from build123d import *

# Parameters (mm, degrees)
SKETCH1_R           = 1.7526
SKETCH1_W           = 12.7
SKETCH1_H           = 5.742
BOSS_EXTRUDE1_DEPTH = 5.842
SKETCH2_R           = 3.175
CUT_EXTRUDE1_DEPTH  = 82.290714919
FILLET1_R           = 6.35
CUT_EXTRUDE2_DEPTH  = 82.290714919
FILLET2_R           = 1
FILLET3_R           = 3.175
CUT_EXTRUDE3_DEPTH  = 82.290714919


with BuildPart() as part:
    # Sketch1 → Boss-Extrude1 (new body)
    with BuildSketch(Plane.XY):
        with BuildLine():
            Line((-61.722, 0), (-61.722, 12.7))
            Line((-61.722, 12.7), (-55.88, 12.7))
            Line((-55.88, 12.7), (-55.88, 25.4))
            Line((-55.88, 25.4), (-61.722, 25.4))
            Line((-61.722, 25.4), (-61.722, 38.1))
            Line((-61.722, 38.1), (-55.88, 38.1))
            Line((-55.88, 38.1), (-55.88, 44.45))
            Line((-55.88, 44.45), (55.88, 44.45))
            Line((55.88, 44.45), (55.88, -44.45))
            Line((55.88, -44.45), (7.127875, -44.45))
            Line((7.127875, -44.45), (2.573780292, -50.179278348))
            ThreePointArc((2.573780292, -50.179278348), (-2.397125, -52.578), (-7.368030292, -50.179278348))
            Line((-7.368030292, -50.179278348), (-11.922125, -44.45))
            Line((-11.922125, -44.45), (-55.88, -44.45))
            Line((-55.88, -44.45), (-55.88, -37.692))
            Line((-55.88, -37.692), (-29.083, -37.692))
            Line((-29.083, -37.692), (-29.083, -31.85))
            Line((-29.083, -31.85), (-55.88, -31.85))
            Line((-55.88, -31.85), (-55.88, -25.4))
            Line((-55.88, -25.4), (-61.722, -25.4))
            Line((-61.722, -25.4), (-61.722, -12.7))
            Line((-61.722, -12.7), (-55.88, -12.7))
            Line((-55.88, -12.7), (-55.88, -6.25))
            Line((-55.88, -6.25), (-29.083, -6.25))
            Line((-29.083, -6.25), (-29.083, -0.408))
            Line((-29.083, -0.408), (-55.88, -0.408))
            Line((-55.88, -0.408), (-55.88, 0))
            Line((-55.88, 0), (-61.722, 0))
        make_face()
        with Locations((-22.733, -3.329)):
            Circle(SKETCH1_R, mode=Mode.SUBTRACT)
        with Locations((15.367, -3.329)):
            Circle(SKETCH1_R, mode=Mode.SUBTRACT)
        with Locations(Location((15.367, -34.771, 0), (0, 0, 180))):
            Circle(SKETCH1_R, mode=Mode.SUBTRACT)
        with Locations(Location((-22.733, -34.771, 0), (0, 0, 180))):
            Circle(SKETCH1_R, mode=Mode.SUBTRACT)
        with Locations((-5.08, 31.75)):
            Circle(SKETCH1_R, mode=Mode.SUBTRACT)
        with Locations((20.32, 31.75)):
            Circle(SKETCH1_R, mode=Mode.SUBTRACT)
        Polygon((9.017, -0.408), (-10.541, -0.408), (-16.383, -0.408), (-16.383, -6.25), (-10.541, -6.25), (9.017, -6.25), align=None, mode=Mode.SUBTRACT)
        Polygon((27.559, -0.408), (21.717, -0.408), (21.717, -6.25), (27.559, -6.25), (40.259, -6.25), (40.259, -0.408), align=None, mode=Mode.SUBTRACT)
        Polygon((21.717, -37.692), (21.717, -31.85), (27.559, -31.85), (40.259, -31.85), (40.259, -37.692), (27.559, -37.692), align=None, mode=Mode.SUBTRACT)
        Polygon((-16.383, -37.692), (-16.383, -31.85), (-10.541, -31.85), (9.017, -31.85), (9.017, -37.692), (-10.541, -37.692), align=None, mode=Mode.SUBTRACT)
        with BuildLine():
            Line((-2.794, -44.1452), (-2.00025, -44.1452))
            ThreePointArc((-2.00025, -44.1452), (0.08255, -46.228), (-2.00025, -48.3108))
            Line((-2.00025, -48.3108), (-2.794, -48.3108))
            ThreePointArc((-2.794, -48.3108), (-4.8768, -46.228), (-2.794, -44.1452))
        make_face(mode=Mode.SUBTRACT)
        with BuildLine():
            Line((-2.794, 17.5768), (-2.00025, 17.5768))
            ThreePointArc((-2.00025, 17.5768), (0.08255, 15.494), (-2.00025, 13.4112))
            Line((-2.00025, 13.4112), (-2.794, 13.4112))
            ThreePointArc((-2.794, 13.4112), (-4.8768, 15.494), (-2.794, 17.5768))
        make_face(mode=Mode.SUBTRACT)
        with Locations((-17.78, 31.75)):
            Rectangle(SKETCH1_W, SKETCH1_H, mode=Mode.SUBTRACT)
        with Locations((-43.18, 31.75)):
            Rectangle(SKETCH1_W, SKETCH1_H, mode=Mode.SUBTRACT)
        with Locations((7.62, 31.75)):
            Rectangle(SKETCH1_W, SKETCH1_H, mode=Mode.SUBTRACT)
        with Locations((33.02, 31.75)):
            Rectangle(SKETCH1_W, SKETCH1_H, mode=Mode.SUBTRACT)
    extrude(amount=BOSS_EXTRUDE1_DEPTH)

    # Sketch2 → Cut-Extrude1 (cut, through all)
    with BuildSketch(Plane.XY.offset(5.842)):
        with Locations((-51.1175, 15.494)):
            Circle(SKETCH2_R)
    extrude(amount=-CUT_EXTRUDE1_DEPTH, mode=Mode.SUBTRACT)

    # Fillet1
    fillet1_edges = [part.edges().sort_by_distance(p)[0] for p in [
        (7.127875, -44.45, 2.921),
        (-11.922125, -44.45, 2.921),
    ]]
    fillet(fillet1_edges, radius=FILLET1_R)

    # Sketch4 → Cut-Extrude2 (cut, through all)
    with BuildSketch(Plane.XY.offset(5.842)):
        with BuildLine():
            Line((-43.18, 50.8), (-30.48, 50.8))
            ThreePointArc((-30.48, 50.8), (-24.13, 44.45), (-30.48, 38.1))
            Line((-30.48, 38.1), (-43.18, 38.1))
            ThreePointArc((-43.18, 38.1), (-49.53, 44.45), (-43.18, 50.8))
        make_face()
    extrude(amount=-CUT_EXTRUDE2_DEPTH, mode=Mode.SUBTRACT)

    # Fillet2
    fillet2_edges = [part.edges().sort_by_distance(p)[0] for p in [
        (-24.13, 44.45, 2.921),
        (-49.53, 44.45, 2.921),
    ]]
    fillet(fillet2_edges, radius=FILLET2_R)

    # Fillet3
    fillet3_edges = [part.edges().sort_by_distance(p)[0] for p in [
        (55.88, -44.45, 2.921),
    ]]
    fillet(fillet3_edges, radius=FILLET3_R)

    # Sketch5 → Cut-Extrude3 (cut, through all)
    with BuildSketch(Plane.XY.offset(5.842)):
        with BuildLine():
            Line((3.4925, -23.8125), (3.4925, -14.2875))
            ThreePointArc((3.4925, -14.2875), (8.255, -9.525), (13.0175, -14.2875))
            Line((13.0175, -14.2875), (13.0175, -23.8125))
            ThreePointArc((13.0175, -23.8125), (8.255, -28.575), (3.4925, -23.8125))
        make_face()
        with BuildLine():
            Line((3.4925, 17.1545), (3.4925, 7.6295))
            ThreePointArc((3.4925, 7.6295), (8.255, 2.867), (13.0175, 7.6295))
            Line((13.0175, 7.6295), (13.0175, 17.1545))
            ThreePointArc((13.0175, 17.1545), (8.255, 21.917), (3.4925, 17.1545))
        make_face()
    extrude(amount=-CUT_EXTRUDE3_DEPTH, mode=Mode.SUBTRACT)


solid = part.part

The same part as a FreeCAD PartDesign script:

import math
import FreeCAD as App
import Part
import Sketcher
from FreeCAD import Vector
Q = App.Units.Quantity


def edges_at(feature, points):
    """Names of the edges that pass closest to the given points."""
    edges = feature.Shape.Edges
    near = lambda p: min(range(len(edges)), key=lambda i: edges[i].distToShape(Part.Vertex(*p))[0])
    return sorted({f"Edge{near(p) + 1}" for p in points})


def add_polygon(sketch, points):
    """Adds a closed chain of lines whose ends are joined by coincident constraints."""
    first, n = sketch.GeometryCount, len(points)
    for a, b in zip(points, points[1:] + points[:1]):
        sketch.addGeometry(Part.LineSegment(App.Vector(*a, 0), App.Vector(*b, 0)), False)
    for i in range(n):
        sketch.addConstraint(Sketcher.Constraint("Coincident", first + i, 2, first + (i + 1) % n, 1))

doc = App.newDocument("Part")
body = doc.addObject("PartDesign::Body", "Body")

sketch1 = doc.addObject("Sketcher::SketchObject", "Sketch")
body.addObject(sketch1)
sketch1.AttachmentSupport = (doc.XY_Plane, [""])
sketch1.MapMode = "FlatFace"
sketch1.addGeometry(Part.LineSegment(Vector(-61.72, 12.7, 0), Vector(-61.72, 0, 0)), False)
sketch1.addGeometry(Part.LineSegment(Vector(-61.72, 0, 0), Vector(-55.88, 0, 0)), False)
sketch1.addGeometry(Part.LineSegment(Vector(-55.88, 0, 0), Vector(-55.88, -0.41, 0)), False)
sketch1.addGeometry(Part.LineSegment(Vector(-55.88, -0.41, 0), Vector(-29.08, -0.41, 0)), False)
sketch1.addGeometry(Part.LineSegment(Vector(-29.08, -0.41, 0), Vector(-29.08, -6.25, 0)), False)
sketch1.addGeometry(Part.LineSegment(Vector(-29.08, -6.25, 0), Vector(-55.88, -6.25, 0)), False)
sketch1.addGeometry(Part.LineSegment(Vector(-55.88, -6.25, 0), Vector(-55.88, -12.7, 0)), False)
sketch1.addGeometry(Part.LineSegment(Vector(-55.88, -12.7, 0), Vector(-61.72, -12.7, 0)), False)
sketch1.addGeometry(Part.LineSegment(Vector(-61.72, -12.7, 0), Vector(-61.72, -25.4, 0)), False)
sketch1.addGeometry(Part.LineSegment(Vector(-61.72, -25.4, 0), Vector(-55.88, -25.4, 0)), False)
sketch1.addGeometry(Part.LineSegment(Vector(-55.88, -25.4, 0), Vector(-55.88, -31.85, 0)), False)
sketch1.addGeometry(Part.LineSegment(Vector(-55.88, -31.85, 0), Vector(-29.08, -31.85, 0)), False)
sketch1.addGeometry(Part.LineSegment(Vector(-29.08, -31.85, 0), Vector(-29.08, -37.69, 0)), False)
sketch1.addGeometry(Part.LineSegment(Vector(-29.08, -37.69, 0), Vector(-55.88, -37.69, 0)), False)
sketch1.addGeometry(Part.LineSegment(Vector(-55.88, -37.69, 0), Vector(-55.88, -44.45, 0)), False)
sketch1.addGeometry(Part.LineSegment(Vector(-55.88, -44.45, 0), Vector(-11.92, -44.45, 0)), False)
sketch1.addGeometry(Part.LineSegment(Vector(-11.92, -44.45, 0), Vector(-7.37, -50.18, 0)), False)
sketch1.addGeometry(Part.ArcOfCircle(Part.Circle(Vector(-2.4, -46.23, 0), Vector(0, 0, 1), 6.35), math.radians(-142), math.radians(-38)), False)
sketch1.addGeometry(Part.LineSegment(Vector(2.57, -50.18, 0), Vector(7.13, -44.45, 0)), False)
sketch1.addGeometry(Part.LineSegment(Vector(7.13, -44.45, 0), Vector(55.88, -44.45, 0)), False)
sketch1.addGeometry(Part.LineSegment(Vector(55.88, -44.45, 0), Vector(55.88, 44.45, 0)), False)
sketch1.addGeometry(Part.LineSegment(Vector(55.88, 44.45, 0), Vector(-55.88, 44.45, 0)), False)
sketch1.addGeometry(Part.LineSegment(Vector(-55.88, 44.45, 0), Vector(-55.88, 38.1, 0)), False)
sketch1.addGeometry(Part.LineSegment(Vector(-55.88, 38.1, 0), Vector(-61.72, 38.1, 0)), False)
sketch1.addGeometry(Part.LineSegment(Vector(-61.72, 38.1, 0), Vector(-61.72, 25.4, 0)), False)
sketch1.addGeometry(Part.LineSegment(Vector(-61.72, 25.4, 0), Vector(-55.88, 25.4, 0)), False)
sketch1.addGeometry(Part.LineSegment(Vector(-55.88, 25.4, 0), Vector(-55.88, 12.7, 0)), False)
sketch1.addGeometry(Part.LineSegment(Vector(-55.88, 12.7, 0), Vector(-61.72, 12.7, 0)), False)
add_polygon(sketch1, [(21.72, -37.69), (21.72, -31.85), (40.26, -31.85), (40.26, -37.69)])
sketch1.addGeometry(Part.LineSegment(Vector(-2.79, -44.15, 0), Vector(-2, -44.15, 0)), False)
sketch1.addGeometry(Part.ArcOfCircle(Part.Circle(Vector(-2, -46.23, 0), Vector(0, 0, 1), 2.08), math.radians(-90), math.radians(90)), False)
sketch1.addGeometry(Part.LineSegment(Vector(-2, -48.31, 0), Vector(-2.79, -48.31, 0)), False)
sketch1.addGeometry(Part.ArcOfCircle(Part.Circle(Vector(-2.79, -46.23, 0), Vector(0, 0, 1), 2.08), math.radians(90), math.radians(270)), False)
sketch1.addGeometry(Part.Circle(Vector(15.37, -34.77, 0), Vector(0, 0, 1), 1.75), False)
add_polygon(sketch1, [(-16.38, -37.69), (-16.38, -31.85), (9.02, -31.85), (9.02, -37.69)])
sketch1.addGeometry(Part.Circle(Vector(-22.73, -34.77, 0), Vector(0, 0, 1), 1.75), False)
add_polygon(sketch1, [(40.26, -0.41), (40.26, -6.25), (21.72, -6.25), (21.72, -0.41)])
sketch1.addGeometry(Part.Circle(Vector(15.37, -3.33, 0), Vector(0, 0, 1), 1.75), False)
add_polygon(sketch1, [(9.02, -0.41), (9.02, -6.25), (-16.38, -6.25), (-16.38, -0.41)])
add_polygon(sketch1, [(26.67, 28.88), (26.67, 34.62), (39.37, 34.62), (39.37, 28.88)])
sketch1.addGeometry(Part.Circle(Vector(20.32, 31.75, 0), Vector(0, 0, 1), 1.75), False)
sketch1.addGeometry(Part.LineSegment(Vector(-2.79, 17.58, 0), Vector(-2, 17.58, 0)), False)
sketch1.addGeometry(Part.ArcOfCircle(Part.Circle(Vector(-2, 15.49, 0), Vector(0, 0, 1), 2.08), math.radians(-90), math.radians(90)), False)
sketch1.addGeometry(Part.LineSegment(Vector(-2, 13.41, 0), Vector(-2.79, 13.41, 0)), False)
sketch1.addGeometry(Part.ArcOfCircle(Part.Circle(Vector(-2.79, 15.49, 0), Vector(0, 0, 1), 2.08), math.radians(90), math.radians(270)), False)
add_polygon(sketch1, [(1.27, 28.88), (1.27, 34.62), (13.97, 34.62), (13.97, 28.88)])
sketch1.addGeometry(Part.Circle(Vector(-22.73, -3.33, 0), Vector(0, 0, 1), 1.75), False)
sketch1.addGeometry(Part.Circle(Vector(-5.08, 31.75, 0), Vector(0, 0, 1), 1.75), False)
add_polygon(sketch1, [(-24.13, 28.88), (-24.13, 34.62), (-11.43, 34.62), (-11.43, 28.88)])
add_polygon(sketch1, [(-49.53, 28.88), (-49.53, 34.62), (-36.83, 34.62), (-36.83, 28.88)])
sketch1.addConstraint(Sketcher.Constraint("Coincident", 0, 2, 1, 1))
sketch1.addConstraint(Sketcher.Constraint("Coincident", 1, 2, 2, 1))
sketch1.addConstraint(Sketcher.Constraint("Coincident", 2, 2, 3, 1))
sketch1.addConstraint(Sketcher.Constraint("Coincident", 3, 2, 4, 1))
sketch1.addConstraint(Sketcher.Constraint("Coincident", 4, 2, 5, 1))
sketch1.addConstraint(Sketcher.Constraint("Coincident", 5, 2, 6, 1))
sketch1.addConstraint(Sketcher.Constraint("Coincident", 6, 2, 7, 1))
sketch1.addConstraint(Sketcher.Constraint("Coincident", 7, 2, 8, 1))
sketch1.addConstraint(Sketcher.Constraint("Coincident", 8, 2, 9, 1))
sketch1.addConstraint(Sketcher.Constraint("Coincident", 9, 2, 10, 1))
sketch1.addConstraint(Sketcher.Constraint("Coincident", 10, 2, 11, 1))
sketch1.addConstraint(Sketcher.Constraint("Coincident", 11, 2, 12, 1))
sketch1.addConstraint(Sketcher.Constraint("Coincident", 12, 2, 13, 1))
sketch1.addConstraint(Sketcher.Constraint("Coincident", 13, 2, 14, 1))
sketch1.addConstraint(Sketcher.Constraint("Coincident", 14, 2, 15, 1))
sketch1.addConstraint(Sketcher.Constraint("Coincident", 15, 2, 16, 1))
sketch1.addConstraint(Sketcher.Constraint("Tangent", 16, 2, 17, 1))
sketch1.addConstraint(Sketcher.Constraint("Tangent", 17, 2, 18, 1))
sketch1.addConstraint(Sketcher.Constraint("Coincident", 18, 2, 19, 1))
sketch1.addConstraint(Sketcher.Constraint("Coincident", 19, 2, 20, 1))
sketch1.addConstraint(Sketcher.Constraint("Coincident", 20, 2, 21, 1))
sketch1.addConstraint(Sketcher.Constraint("Coincident", 21, 2, 22, 1))
sketch1.addConstraint(Sketcher.Constraint("Coincident", 22, 2, 23, 1))
sketch1.addConstraint(Sketcher.Constraint("Coincident", 23, 2, 24, 1))
sketch1.addConstraint(Sketcher.Constraint("Coincident", 24, 2, 25, 1))
sketch1.addConstraint(Sketcher.Constraint("Coincident", 25, 2, 26, 1))
sketch1.addConstraint(Sketcher.Constraint("Coincident", 26, 2, 27, 1))
sketch1.addConstraint(Sketcher.Constraint("Coincident", 27, 2, 0, 1))
sketch1.addConstraint(Sketcher.Constraint("Tangent", 32, 2, 33, 2))
sketch1.addConstraint(Sketcher.Constraint("Tangent", 33, 1, 34, 1))
sketch1.addConstraint(Sketcher.Constraint("Tangent", 34, 2, 35, 2))
sketch1.addConstraint(Sketcher.Constraint("Tangent", 35, 1, 32, 1))
sketch1.addConstraint(Sketcher.Constraint("Tangent", 56, 2, 57, 2))
sketch1.addConstraint(Sketcher.Constraint("Tangent", 57, 1, 58, 1))
sketch1.addConstraint(Sketcher.Constraint("Tangent", 58, 2, 59, 2))
sketch1.addConstraint(Sketcher.Constraint("Tangent", 59, 1, 56, 1))
sketch1.addConstraint(Sketcher.Constraint("Vertical", 0))
sketch1.addConstraint(Sketcher.Constraint("Horizontal", 1))
sketch1.addConstraint(Sketcher.Constraint("Vertical", 2))
sketch1.addConstraint(Sketcher.Constraint("Horizontal", 3))
sketch1.addConstraint(Sketcher.Constraint("Vertical", 4))
sketch1.addConstraint(Sketcher.Constraint("Horizontal", 5))
sketch1.addConstraint(Sketcher.Constraint("Vertical", 6))
sketch1.addConstraint(Sketcher.Constraint("Horizontal", 7))
sketch1.addConstraint(Sketcher.Constraint("Vertical", 8))
sketch1.addConstraint(Sketcher.Constraint("Horizontal", 9))
sketch1.addConstraint(Sketcher.Constraint("Vertical", 10))
sketch1.addConstraint(Sketcher.Constraint("Horizontal", 11))
sketch1.addConstraint(Sketcher.Constraint("Vertical", 12))
sketch1.addConstraint(Sketcher.Constraint("Horizontal", 13))
sketch1.addConstraint(Sketcher.Constraint("Vertical", 14))
sketch1.addConstraint(Sketcher.Constraint("Horizontal", 15))
sketch1.addConstraint(Sketcher.Constraint("Horizontal", 19))
sketch1.addConstraint(Sketcher.Constraint("Vertical", 20))
sketch1.addConstraint(Sketcher.Constraint("Horizontal", 21))
sketch1.addConstraint(Sketcher.Constraint("Vertical", 22))
sketch1.addConstraint(Sketcher.Constraint("Horizontal", 23))
sketch1.addConstraint(Sketcher.Constraint("Vertical", 24))
sketch1.addConstraint(Sketcher.Constraint("Horizontal", 25))
sketch1.addConstraint(Sketcher.Constraint("Vertical", 26))
sketch1.addConstraint(Sketcher.Constraint("Horizontal", 27))
sketch1.addConstraint(Sketcher.Constraint("Vertical", 28))
sketch1.addConstraint(Sketcher.Constraint("Horizontal", 29))
sketch1.addConstraint(Sketcher.Constraint("Vertical", 30))
sketch1.addConstraint(Sketcher.Constraint("Horizontal", 31))
sketch1.addConstraint(Sketcher.Constraint("Horizontal", 32))
sketch1.addConstraint(Sketcher.Constraint("Horizontal", 34))
sketch1.addConstraint(Sketcher.Constraint("Vertical", 37))
sketch1.addConstraint(Sketcher.Constraint("Horizontal", 38))
sketch1.addConstraint(Sketcher.Constraint("Vertical", 39))
sketch1.addConstraint(Sketcher.Constraint("Horizontal", 40))
sketch1.addConstraint(Sketcher.Constraint("Vertical", 42))
sketch1.addConstraint(Sketcher.Constraint("Horizontal", 43))
sketch1.addConstraint(Sketcher.Constraint("Vertical", 44))
sketch1.addConstraint(Sketcher.Constraint("Horizontal", 45))
sketch1.addConstraint(Sketcher.Constraint("Vertical", 47))
sketch1.addConstraint(Sketcher.Constraint("Horizontal", 48))
sketch1.addConstraint(Sketcher.Constraint("Vertical", 49))
sketch1.addConstraint(Sketcher.Constraint("Horizontal", 50))
sketch1.addConstraint(Sketcher.Constraint("Vertical", 51))
sketch1.addConstraint(Sketcher.Constraint("Horizontal", 52))
sketch1.addConstraint(Sketcher.Constraint("Vertical", 53))
sketch1.addConstraint(Sketcher.Constraint("Horizontal", 54))
sketch1.addConstraint(Sketcher.Constraint("Horizontal", 56))
sketch1.addConstraint(Sketcher.Constraint("Horizontal", 58))
sketch1.addConstraint(Sketcher.Constraint("Vertical", 60))
sketch1.addConstraint(Sketcher.Constraint("Horizontal", 61))
sketch1.addConstraint(Sketcher.Constraint("Vertical", 62))
sketch1.addConstraint(Sketcher.Constraint("Horizontal", 63))
sketch1.addConstraint(Sketcher.Constraint("Vertical", 66))
sketch1.addConstraint(Sketcher.Constraint("Horizontal", 67))
sketch1.addConstraint(Sketcher.Constraint("Vertical", 68))
sketch1.addConstraint(Sketcher.Constraint("Horizontal", 69))
sketch1.addConstraint(Sketcher.Constraint("Vertical", 70))
sketch1.addConstraint(Sketcher.Constraint("Horizontal", 71))
sketch1.addConstraint(Sketcher.Constraint("Vertical", 72))
sketch1.addConstraint(Sketcher.Constraint("Horizontal", 73))
sketch1.addConstraint(Sketcher.Constraint("Equal", 36, 41))
sketch1.addConstraint(Sketcher.Constraint("Equal", 41, 46))
sketch1.addConstraint(Sketcher.Constraint("Equal", 46, 55))
sketch1.addConstraint(Sketcher.Constraint("Equal", 35, 57))
sketch1.addConstraint(Sketcher.Constraint("Equal", 55, 64))
sketch1.addConstraint(Sketcher.Constraint("Equal", 64, 65))
sketch1.addConstraint(Sketcher.Constraint("Symmetric", 14, 2, 20, 2, -1, 1))
sketch1.addConstraint(Sketcher.Constraint("Symmetric", 19, 2, 21, 2, -1, 1))
sketch1.addConstraint(Sketcher.Constraint("Symmetric", 8, 2, 24, 2, -1))
sketch1.addConstraint(Sketcher.Constraint("Symmetric", 6, 2, 26, 2, -1))
sketch1.addConstraint(Sketcher.Constraint("PointOnObject", 0, 2, -1))
sketch1.addConstraint(Sketcher.Constraint("Horizontal", 17, 3, 33, 3))
sketch1.addConstraint(Sketcher.Constraint("Horizontal", 36, 3, 41, 3))
sketch1.addConstraint(Sketcher.Constraint("Horizontal", 46, 3, 64, 3))
sketch1.addConstraint(Sketcher.Constraint("Horizontal", 55, 3, 65, 3))
sketch1.addConstraint(Sketcher.Constraint("Horizontal", 16, 2, 17, 2))
sketch1.addConstraint(Sketcher.Constraint("Horizontal", 11, 2, 28, 2))
sketch1.addConstraint(Sketcher.Constraint("Horizontal", 13, 2, 30, 2))
sketch1.addConstraint(Sketcher.Constraint("Horizontal", 29, 2, 37, 2))
sketch1.addConstraint(Sketcher.Constraint("Horizontal", 31, 2, 39, 2))
sketch1.addConstraint(Sketcher.Constraint("Horizontal", 5, 2, 42, 2))
sketch1.addConstraint(Sketcher.Constraint("Horizontal", 3, 2, 44, 2))
sketch1.addConstraint(Sketcher.Constraint("Horizontal", 43, 2, 47, 2))
sketch1.addConstraint(Sketcher.Constraint("Horizontal", 45, 2, 49, 2))
sketch1.addConstraint(Sketcher.Constraint("Horizontal", 52, 2, 60, 2))
sketch1.addConstraint(Sketcher.Constraint("Horizontal", 54, 2, 62, 2))
sketch1.addConstraint(Sketcher.Constraint("Horizontal", 61, 2, 66, 2))
sketch1.addConstraint(Sketcher.Constraint("Horizontal", 63, 2, 68, 2))
sketch1.addConstraint(Sketcher.Constraint("Horizontal", 67, 2, 70, 2))
sketch1.addConstraint(Sketcher.Constraint("Horizontal", 69, 2, 72, 2))
sketch1.addConstraint(Sketcher.Constraint("Vertical", 36, 3, 46, 3))
sketch1.addConstraint(Sketcher.Constraint("Vertical", 33, 3, 57, 3))
sketch1.addConstraint(Sketcher.Constraint("Vertical", 35, 3, 59, 3))
sketch1.addConstraint(Sketcher.Constraint("Vertical", 41, 3, 64, 3))
sketch1.addConstraint(Sketcher.Constraint("Vertical", 2, 2, 5, 2))
sketch1.addConstraint(Sketcher.Constraint("Vertical", 0, 2, 7, 2))
sketch1.addConstraint(Sketcher.Constraint("Vertical", 6, 2, 9, 2))
sketch1.addConstraint(Sketcher.Constraint("Vertical", 4, 2, 11, 2))
sketch1.addConstraint(Sketcher.Constraint("Vertical", 10, 2, 13, 2))
sketch1.addConstraint(Sketcher.Constraint("Vertical", 30, 2, 42, 2))
sketch1.addConstraint(Sketcher.Constraint("Vertical", 31, 2, 43, 2))
sketch1.addConstraint(Sketcher.Constraint("Vertical", 39, 2, 47, 2))
sketch1.addConstraint(Sketcher.Constraint("Vertical", 40, 2, 48, 2))
sketch1.addConstraint(Sketcher.Constraint("Equal", 54, 61))
sketch1.addConstraint(Sketcher.Constraint("Equal", 63, 67))
sketch1.addConstraint(Sketcher.Constraint("Equal", 69, 71))
sketch1.addConstraint(Sketcher.Constraint("Equal", 73, 0))
sketch1.addConstraint(Sketcher.Constraint("Equal", 27, 4))
sketch1.addConstraint(Sketcher.Constraint("Equal", 0, 8))
sketch1.addConstraint(Sketcher.Constraint("Equal", 6, 10))
sketch1.addConstraint(Sketcher.Constraint("Equal", 4, 12))
sketch1.addConstraint(Sketcher.Constraint("Equal", 8, 24))
sketch1.addConstraint(Sketcher.Constraint("DistanceX", 38, 1, 38, 2, Q("1 in")))
sketch1.addConstraint(Sketcher.Constraint("Radius", 17, Q("0.25 in")))
sketch1.addConstraint(Sketcher.Constraint("Diameter", 36, Q("0.138 in")))
sketch1.addConstraint(Sketcher.Constraint("DistanceX", 21, 2, 21, 1, Q("4.4 in")))
sketch1.addConstraint(Sketcher.Constraint("DistanceX", 52, 1, 52, 2, Q("0.5 in")))
sketch1.addConstraint(Sketcher.Constraint("DistanceY", 20, 1, 20, 2, Q("3.5 in")))
sketch1.addConstraint(Sketcher.Constraint("Radius", 33, Q("0.082 in")))
sketch1.addConstraint(Sketcher.Constraint("DistanceX", 1, 1, 1, 2, Q("0.23 in")))
sketch1.addConstraint(Sketcher.Constraint("DistanceX", 29, 1, 29, 2, Q("0.73 in")))
sketch1.addConstraint(Sketcher.Constraint("DistanceX", -1, 1, 55, 3, Q("0.8 in")))
sketch1.addConstraint(Sketcher.Constraint("DistanceX", 65, 3, -1, 1, Q("0.2 in")))
sketch1.addConstraint(Sketcher.Constraint("DistanceX", 3, 1, 3, 2, Q("1.055 in")))
sketch1.addConstraint(Sketcher.Constraint("DistanceX", 32, 1, 32, 2, Q("0.03125 in")))
sketch1.addConstraint(Sketcher.Constraint("DistanceY", 17, 3, -1, 1, Q("1.82 in")))
sketch1.addConstraint(Sketcher.Constraint("DistanceX", 35, 3, -1, 1, Q("0.11 in")))
sketch1.addConstraint(Sketcher.Constraint("DistanceY", -1, 1, 55, 3, Q("1.25 in")))
sketch1.addConstraint(Sketcher.Constraint("DistanceY", -1, 1, 57, 3, Q("0.61 in")))
sketch1.addConstraint(Sketcher.Constraint("DistanceX", -1, 1, 51, 2, Q("1.05 in")))
sketch1.addConstraint(Sketcher.Constraint("DistanceX", -1, 1, 60, 2, Q("0.05 in")))
sketch1.addConstraint(Sketcher.Constraint("DistanceX", 66, 2, -1, 1, Q("0.95 in")))
sketch1.addConstraint(Sketcher.Constraint("DistanceX", 70, 2, -1, 1, Q("1.95 in")))
sketch1.addConstraint(Sketcher.Constraint("DistanceX", -1, 1, 36, 3, Q("0.605 in")))
sketch1.addConstraint(Sketcher.Constraint("DistanceX", 41, 3, -1, 1, Q("0.895 in")))
sketch1.addConstraint(Sketcher.Constraint("DistanceX", -1, 1, 28, 2, Q("0.855 in")))
sketch1.addConstraint(Sketcher.Constraint("DistanceX", 37, 2, -1, 1, Q("0.645 in")))
sketch1.addConstraint(Sketcher.Constraint("DistanceY", 2, 2, 2, 1, Q("0.408 mm")))
sketch1.addConstraint(Sketcher.Constraint("DistanceY", 51, 1, 51, 2, Q("5.742 mm")))
sketch1.addConstraint(Sketcher.Constraint("DistanceY", 36, 3, -1, 1, Q("34.771 mm")))
sketch1.addConstraint(Sketcher.Constraint("DistanceY", 46, 3, -1, 1, Q("3.329 mm")))
sketch1.addConstraint(Sketcher.Constraint("DistanceY", -1, 1, 51, 2, Q("34.621 mm")))
sketch1.addConstraint(Sketcher.Constraint("Distance", 16, Q("7.318771 mm")))
sketch1.addConstraint(Sketcher.Constraint("DistanceX", 15, 1, 15, 2, Q("43.957875 mm")))
pad1 = doc.addObject("PartDesign::Pad", "Pad")
body.addObject(pad1)
pad1.Profile = sketch1
pad1.Length = Q("0.23 in")

sketch2 = doc.addObject("Sketcher::SketchObject", "Sketch001")
body.addObject(sketch2)
sketch2.AttachmentSupport = (doc.XY_Plane, [""])
sketch2.MapMode = "FlatFace"
sketch2.AttachmentOffset = App.Placement(Vector(0, 0, 0.23 * 25.4), App.Rotation())
sketch2.addGeometry(Part.Circle(Vector(-51.1, 15.5, 0), Vector(0, 0, 1), 3.2), False)
sketch2.addConstraint(Sketcher.Constraint("Diameter", 0, Q("0.25 in")))
sketch2.addConstraint(Sketcher.Constraint("DistanceY", -1, 1, 0, 3, Q("0.61 in")))
sketch2.addConstraint(Sketcher.Constraint("DistanceX", 0, 3, -1, 1, Q("2.0125 in")))
pocket1 = doc.addObject("PartDesign::Pocket", "Pocket")
body.addObject(pocket1)
pocket1.Profile = sketch2
pocket1.Type = "ThroughAll"
doc.recompute()

fillet = doc.addObject("PartDesign::Fillet", "Fillet")
body.addObject(fillet)
fillet.Base = (pocket1, edges_at(pocket1, [(7.128, -44.45, 2.921), (-11.922, -44.45, 2.921)]))
fillet.Radius = Q("0.25 in")

sketch3 = doc.addObject("Sketcher::SketchObject", "Sketch002")
body.addObject(sketch3)
sketch3.AttachmentSupport = (doc.XY_Plane, [""])
sketch3.MapMode = "FlatFace"
sketch3.AttachmentOffset = App.Placement(Vector(0, 0, 0.23 * 25.4), App.Rotation())
sketch3.addGeometry(Part.LineSegment(Vector(-30, 51, 0), Vector(-43, 51, 0)), False)
sketch3.addGeometry(Part.ArcOfCircle(Part.Circle(Vector(-43, 44, 0), Vector(0, 0, 1), 6), math.radians(90), math.radians(270)), False)
sketch3.addGeometry(Part.LineSegment(Vector(-43, 38, 0), Vector(-30, 38, 0)), False)
sketch3.addGeometry(Part.ArcOfCircle(Part.Circle(Vector(-30, 44, 0), Vector(0, 0, 1), 6), math.radians(-90), math.radians(90)), False)
sketch3.addConstraint(Sketcher.Constraint("Tangent", 0, 2, 1, 1))
sketch3.addConstraint(Sketcher.Constraint("Tangent", 1, 2, 2, 1))
sketch3.addConstraint(Sketcher.Constraint("Tangent", 2, 2, 3, 1))
sketch3.addConstraint(Sketcher.Constraint("Tangent", 3, 2, 0, 1))
sketch3.addConstraint(Sketcher.Constraint("Horizontal", 0))
sketch3.addConstraint(Sketcher.Constraint("Horizontal", 2))
sketch3.addConstraint(Sketcher.Constraint("Radius", 1, Q("0.25 in")))
sketch3.addConstraint(Sketcher.Constraint("DistanceX", 0, 2, 0, 1, Q("0.5 in")))
sketch3.addConstraint(Sketcher.Constraint("DistanceY", -1, 1, 0, 2, Q("2 in")))
sketch3.addConstraint(Sketcher.Constraint("DistanceX", 1, 3, -1, 1, Q("1.7 in")))
pocket2 = doc.addObject("PartDesign::Pocket", "Pocket001")
body.addObject(pocket2)
pocket2.Profile = sketch3
pocket2.Type = "ThroughAll"
doc.recompute()

fillet2 = doc.addObject("PartDesign::Fillet", "Fillet001")
body.addObject(fillet2)
fillet2.Base = (pocket2, edges_at(pocket2, [(-24.13, 44.45, 2.921), (-49.53, 44.45, 2.921)]))
fillet2.Radius = 1
doc.recompute()

fillet3 = doc.addObject("PartDesign::Fillet", "Fillet002")
body.addObject(fillet3)
fillet3.Base = (fillet2, edges_at(fillet2, [(55.88, -44.45, 2.921)]))
fillet3.Radius = Q("0.125 in")

sketch4 = doc.addObject("Sketcher::SketchObject", "Sketch003")
body.addObject(sketch4)
sketch4.AttachmentSupport = (doc.XY_Plane, [""])
sketch4.MapMode = "FlatFace"
sketch4.AttachmentOffset = App.Placement(Vector(0, 0, 0.23 * 25.4), App.Rotation())
sketch4.addGeometry(Part.LineSegment(Vector(3.5, -14.3, 0), Vector(3.5, -23.8, 0)), False)
sketch4.addGeometry(Part.ArcOfCircle(Part.Circle(Vector(8.3, -23.8, 0), Vector(0, 0, 1), 4.8), math.radians(180), math.radians(360)), False)
sketch4.addGeometry(Part.LineSegment(Vector(13, -23.8, 0), Vector(13, -14.3, 0)), False)
sketch4.addGeometry(Part.ArcOfCircle(Part.Circle(Vector(8.3, -14.3, 0), Vector(0, 0, 1), 4.8), math.radians(0), math.radians(180)), False)
sketch4.addGeometry(Part.LineSegment(Vector(3.5, 17.2, 0), Vector(3.5, 7.6, 0)), False)
sketch4.addGeometry(Part.ArcOfCircle(Part.Circle(Vector(8.3, 7.6, 0), Vector(0, 0, 1), 4.8), math.radians(180), math.radians(360)), False)
sketch4.addGeometry(Part.LineSegment(Vector(13, 7.6, 0), Vector(13, 17.2, 0)), False)
sketch4.addGeometry(Part.ArcOfCircle(Part.Circle(Vector(8.3, 17.2, 0), Vector(0, 0, 1), 4.8), math.radians(0), math.radians(180)), False)
sketch4.addConstraint(Sketcher.Constraint("Tangent", 0, 2, 1, 1))
sketch4.addConstraint(Sketcher.Constraint("Tangent", 1, 2, 2, 1))
sketch4.addConstraint(Sketcher.Constraint("Tangent", 2, 2, 3, 1))
sketch4.addConstraint(Sketcher.Constraint("Tangent", 3, 2, 0, 1))
sketch4.addConstraint(Sketcher.Constraint("Tangent", 4, 2, 5, 1))
sketch4.addConstraint(Sketcher.Constraint("Tangent", 5, 2, 6, 1))
sketch4.addConstraint(Sketcher.Constraint("Tangent", 6, 2, 7, 1))
sketch4.addConstraint(Sketcher.Constraint("Tangent", 7, 2, 4, 1))
sketch4.addConstraint(Sketcher.Constraint("Vertical", 0))
sketch4.addConstraint(Sketcher.Constraint("Vertical", 2))
sketch4.addConstraint(Sketcher.Constraint("Vertical", 4))
sketch4.addConstraint(Sketcher.Constraint("Vertical", 6))
sketch4.addConstraint(Sketcher.Constraint("Equal", 3, 5))
sketch4.addConstraint(Sketcher.Constraint("Vertical", 3, 3, 5, 3))
sketch4.addConstraint(Sketcher.Constraint("Equal", 2, 4))
sketch4.addConstraint(Sketcher.Constraint("Radius", 1, Q("0.1875 in")))
sketch4.addConstraint(Sketcher.Constraint("DistanceY", 0, 2, 0, 1, Q("0.375 in")))
sketch4.addConstraint(Sketcher.Constraint("DistanceX", -1, 1, 1, 3, Q("0.325 in")))
sketch4.addConstraint(Sketcher.Constraint("DistanceY", 1, 3, -1, 1, Q("0.9375 in")))
sketch4.addConstraint(Sketcher.Constraint("DistanceY", -1, 1, 5, 3, Q("7.6295 mm")))
pocket3 = doc.addObject("PartDesign::Pocket", "Pocket002")
body.addObject(pocket3)
pocket3.Profile = sketch4
pocket3.Type = "ThroughAll"

doc.recompute()
